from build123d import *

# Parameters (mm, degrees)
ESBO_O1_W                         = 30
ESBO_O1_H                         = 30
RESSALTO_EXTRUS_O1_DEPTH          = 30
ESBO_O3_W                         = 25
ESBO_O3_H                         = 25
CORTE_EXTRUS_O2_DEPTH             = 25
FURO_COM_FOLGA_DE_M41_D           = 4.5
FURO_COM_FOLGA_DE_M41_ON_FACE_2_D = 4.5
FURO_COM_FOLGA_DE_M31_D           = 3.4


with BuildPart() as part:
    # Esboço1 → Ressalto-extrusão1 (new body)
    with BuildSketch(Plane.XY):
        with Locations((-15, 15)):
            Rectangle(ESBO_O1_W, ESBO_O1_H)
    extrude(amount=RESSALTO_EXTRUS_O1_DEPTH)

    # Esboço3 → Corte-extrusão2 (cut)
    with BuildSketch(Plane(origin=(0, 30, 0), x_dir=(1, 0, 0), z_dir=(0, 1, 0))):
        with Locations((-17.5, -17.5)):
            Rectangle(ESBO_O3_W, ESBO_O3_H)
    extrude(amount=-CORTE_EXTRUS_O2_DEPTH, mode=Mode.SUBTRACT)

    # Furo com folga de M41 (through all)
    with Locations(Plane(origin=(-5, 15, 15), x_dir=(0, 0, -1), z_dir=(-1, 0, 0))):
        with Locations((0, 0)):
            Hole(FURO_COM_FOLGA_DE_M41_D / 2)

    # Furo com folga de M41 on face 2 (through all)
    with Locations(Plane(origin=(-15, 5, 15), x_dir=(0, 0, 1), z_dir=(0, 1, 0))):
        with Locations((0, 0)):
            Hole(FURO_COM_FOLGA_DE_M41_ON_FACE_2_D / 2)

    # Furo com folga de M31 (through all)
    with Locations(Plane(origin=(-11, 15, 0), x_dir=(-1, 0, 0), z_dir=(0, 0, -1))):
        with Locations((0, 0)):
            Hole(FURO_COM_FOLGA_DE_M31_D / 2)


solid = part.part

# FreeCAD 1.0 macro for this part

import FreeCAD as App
import Part
import Sketcher
from FreeCAD import Vector
Q = App.Units.Quantity


def add_polygon(sketch, points):
    """Adds a closed chain of lines whose ends are joined by coincident constraints."""
    first, n = sketch.GeometryCount, len(points)
    for a, b in zip(points, points[1:] + points[:1]):
        sketch.addGeometry(Part.LineSegment(App.Vector(*a, 0), App.Vector(*b, 0)), False)
    for i in range(n):
        sketch.addConstraint(Sketcher.Constraint("Coincident", first + i, 2, first + (i + 1) % n, 1))

doc = App.newDocument("Part")
params = doc.addObject("Spreadsheet::Sheet", "Params")
for row, (alias, value) in enumerate([
    ("sketch1_width", "30 mm"),
    ("pad1_length", "30 mm"),
    ("sketch2_width", "25 mm"),
    ("pocket1_length", "25 mm"),
    ("sketch3_diameter", "4.5 mm"),
    ("hole_diameter", "4.5 mm"),
    ("sketch4_diameter", "4.5 mm"),
    ("hole2_diameter", "4.5 mm"),
    ("sketch5_diameter", "3.4 mm"),
    ("hole3_diameter", "3.4 mm"),
], start=1):
    params.set(f"A{row}", alias)
    params.set(f"B{row}", "=" + value)
    params.setAlias(f"B{row}", alias)

body = doc.addObject("PartDesign::Body", "Body")

sketch1 = body.newObject("Sketcher::SketchObject", "Sketch")
sketch1.AttachmentSupport = (doc.getObject("XY_Plane"), [""])
sketch1.MapMode = "FlatFace"
add_polygon(sketch1, [(-30, 30), (-30, 0), (0, 0), (0, 30)])
sketch1.addConstraint([
    Sketcher.Constraint("Vertical", 0),
    Sketcher.Constraint("Horizontal", 1),
    Sketcher.Constraint("Vertical", 2),
    Sketcher.Constraint("Horizontal", 3),
    Sketcher.Constraint("Coincident", 1, 2, -1, 1),
    Sketcher.Constraint("Equal", 3, 0),
    Sketcher.Constraint("DistanceX", 1, 1, 1, 2, Q("30 mm")),
])
sketch1.setExpression("Constraints[10]", "Params.sketch1_width")
pad1 = body.newObject("PartDesign::Pad", "Pad")
pad1.Profile = sketch1
pad1.setExpression("Length", "Params.pad1_length")

sketch2 = body.newObject("Sketcher::SketchObject", "Sketch001")
sketch2.AttachmentSupport = (doc.getObject("XZ_Plane"), [""])
sketch2.MapMode = "FlatFace"
sketch2.AttachmentOffset = App.Placement(Vector(0, 0, -30), App.Rotation())
add_polygon(sketch2, [(-30, 5), (-30, 30), (-5, 30), (-5, 5)])
sketch2.addConstraint([
    Sketcher.Constraint("Vertical", 0),
    Sketcher.Constraint("Horizontal", 1),
    Sketcher.Constraint("Vertical", 2),
    Sketcher.Constraint("Horizontal", 3),
    Sketcher.Constraint("Equal", 3, 0),
    Sketcher.Constraint("DistanceX", 1, 1, 1, 2, Q("25 mm")),
    Sketcher.Constraint("DistanceX", 0, 2, -1, 1, Q("30 mm")),
    Sketcher.Constraint("DistanceY", -1, 1, 0, 2, Q("30 mm")),
])
sketch2.setExpression("Constraints[9]", "Params.sketch2_width")
pocket1 = body.newObject("PartDesign::Pocket", "Pocket")
pocket1.Profile = sketch2
pocket1.setExpression("Length", "Params.pocket1_length")
pocket1.Reversed = True

sketch3 = body.newObject("Sketcher::SketchObject", "Sketch002")
sketch3.AttachmentSupport = (doc.getObject("YZ_Plane"), [""])
sketch3.MapMode = "FlatFace"
sketch3.AttachmentOffset = App.Placement(Vector(0, 0, -5), App.Rotation())
sketch3.addGeometry(Part.Circle(Vector(15, 15, 0), Vector(0, 0, 1), 2.25), False)
sketch3.addConstraint([
    Sketcher.Constraint("Diameter", 0, Q("4.5 mm")),
    Sketcher.Constraint("DistanceX", -1, 1, 0, 3, Q("15 mm")),
    Sketcher.Constraint("DistanceY", -1, 1, 0, 3, Q("15 mm")),
])
sketch3.setExpression("Constraints[0]", "Params.sketch3_diameter")
doc.recompute()
hole = body.newObject("PartDesign::Hole", "Hole")
hole.Profile = sketch3
hole.ThreadType = "None"
hole.setExpression("Diameter", "Params.hole_diameter")
hole.DepthType = "ThroughAll"
hole.Reversed = True

sketch4 = body.newObject("Sketcher::SketchObject", "Sketch003")
sketch4.AttachmentSupport = (doc.getObject("XZ_Plane"), [""])
sketch4.MapMode = "FlatFace"
sketch4.AttachmentOffset = App.Placement(Vector(0, 0, -5), App.Rotation())
sketch4.addGeometry(Part.Circle(Vector(-15, 15, 0), Vector(0, 0, 1), 2.25), False)
sketch4.addConstraint([
    Sketcher.Constraint("Diameter", 0, Q("4.5 mm")),
    Sketcher.Constraint("DistanceX", 0, 3, -1, 1, Q("15 mm")),
    Sketcher.Constraint("DistanceY", -1, 1, 0, 3, Q("15 mm")),
])
sketch4.setExpression("Constraints[0]", "Params.sketch4_diameter")
doc.recompute()
hole2 = body.newObject("PartDesign::Hole", "Hole001")
hole2.Profile = sketch4
hole2.ThreadType = "None"
hole2.setExpression("Diameter", "Params.hole2_diameter")
hole2.DepthType = "ThroughAll"
hole2.Reversed = True

sketch5 = body.newObject("Sketcher::SketchObject", "Sketch004")
sketch5.AttachmentSupport = (doc.getObject("XY_Plane"), [""])
sketch5.MapMode = "FlatFace"
sketch5.addGeometry(Part.Circle(Vector(-11, 15, 0), Vector(0, 0, 1), 1.7), False)
sketch5.addConstraint([
    Sketcher.Constraint("Diameter", 0, Q("3.4 mm")),
    Sketcher.Constraint("DistanceX", 0, 3, -1, 1, Q("11 mm")),
    Sketcher.Constraint("DistanceY", -1, 1, 0, 3, Q("15 mm")),
])
sketch5.setExpression("Constraints[0]", "Params.sketch5_diameter")
doc.recompute()
hole3 = body.newObject("PartDesign::Hole", "Hole002")
hole3.Profile = sketch5
hole3.ThreadType = "None"
hole3.setExpression("Diameter", "Params.hole3_diameter")
hole3.DepthType = "ThroughAll"
hole3.Reversed = True

doc.recompute()
